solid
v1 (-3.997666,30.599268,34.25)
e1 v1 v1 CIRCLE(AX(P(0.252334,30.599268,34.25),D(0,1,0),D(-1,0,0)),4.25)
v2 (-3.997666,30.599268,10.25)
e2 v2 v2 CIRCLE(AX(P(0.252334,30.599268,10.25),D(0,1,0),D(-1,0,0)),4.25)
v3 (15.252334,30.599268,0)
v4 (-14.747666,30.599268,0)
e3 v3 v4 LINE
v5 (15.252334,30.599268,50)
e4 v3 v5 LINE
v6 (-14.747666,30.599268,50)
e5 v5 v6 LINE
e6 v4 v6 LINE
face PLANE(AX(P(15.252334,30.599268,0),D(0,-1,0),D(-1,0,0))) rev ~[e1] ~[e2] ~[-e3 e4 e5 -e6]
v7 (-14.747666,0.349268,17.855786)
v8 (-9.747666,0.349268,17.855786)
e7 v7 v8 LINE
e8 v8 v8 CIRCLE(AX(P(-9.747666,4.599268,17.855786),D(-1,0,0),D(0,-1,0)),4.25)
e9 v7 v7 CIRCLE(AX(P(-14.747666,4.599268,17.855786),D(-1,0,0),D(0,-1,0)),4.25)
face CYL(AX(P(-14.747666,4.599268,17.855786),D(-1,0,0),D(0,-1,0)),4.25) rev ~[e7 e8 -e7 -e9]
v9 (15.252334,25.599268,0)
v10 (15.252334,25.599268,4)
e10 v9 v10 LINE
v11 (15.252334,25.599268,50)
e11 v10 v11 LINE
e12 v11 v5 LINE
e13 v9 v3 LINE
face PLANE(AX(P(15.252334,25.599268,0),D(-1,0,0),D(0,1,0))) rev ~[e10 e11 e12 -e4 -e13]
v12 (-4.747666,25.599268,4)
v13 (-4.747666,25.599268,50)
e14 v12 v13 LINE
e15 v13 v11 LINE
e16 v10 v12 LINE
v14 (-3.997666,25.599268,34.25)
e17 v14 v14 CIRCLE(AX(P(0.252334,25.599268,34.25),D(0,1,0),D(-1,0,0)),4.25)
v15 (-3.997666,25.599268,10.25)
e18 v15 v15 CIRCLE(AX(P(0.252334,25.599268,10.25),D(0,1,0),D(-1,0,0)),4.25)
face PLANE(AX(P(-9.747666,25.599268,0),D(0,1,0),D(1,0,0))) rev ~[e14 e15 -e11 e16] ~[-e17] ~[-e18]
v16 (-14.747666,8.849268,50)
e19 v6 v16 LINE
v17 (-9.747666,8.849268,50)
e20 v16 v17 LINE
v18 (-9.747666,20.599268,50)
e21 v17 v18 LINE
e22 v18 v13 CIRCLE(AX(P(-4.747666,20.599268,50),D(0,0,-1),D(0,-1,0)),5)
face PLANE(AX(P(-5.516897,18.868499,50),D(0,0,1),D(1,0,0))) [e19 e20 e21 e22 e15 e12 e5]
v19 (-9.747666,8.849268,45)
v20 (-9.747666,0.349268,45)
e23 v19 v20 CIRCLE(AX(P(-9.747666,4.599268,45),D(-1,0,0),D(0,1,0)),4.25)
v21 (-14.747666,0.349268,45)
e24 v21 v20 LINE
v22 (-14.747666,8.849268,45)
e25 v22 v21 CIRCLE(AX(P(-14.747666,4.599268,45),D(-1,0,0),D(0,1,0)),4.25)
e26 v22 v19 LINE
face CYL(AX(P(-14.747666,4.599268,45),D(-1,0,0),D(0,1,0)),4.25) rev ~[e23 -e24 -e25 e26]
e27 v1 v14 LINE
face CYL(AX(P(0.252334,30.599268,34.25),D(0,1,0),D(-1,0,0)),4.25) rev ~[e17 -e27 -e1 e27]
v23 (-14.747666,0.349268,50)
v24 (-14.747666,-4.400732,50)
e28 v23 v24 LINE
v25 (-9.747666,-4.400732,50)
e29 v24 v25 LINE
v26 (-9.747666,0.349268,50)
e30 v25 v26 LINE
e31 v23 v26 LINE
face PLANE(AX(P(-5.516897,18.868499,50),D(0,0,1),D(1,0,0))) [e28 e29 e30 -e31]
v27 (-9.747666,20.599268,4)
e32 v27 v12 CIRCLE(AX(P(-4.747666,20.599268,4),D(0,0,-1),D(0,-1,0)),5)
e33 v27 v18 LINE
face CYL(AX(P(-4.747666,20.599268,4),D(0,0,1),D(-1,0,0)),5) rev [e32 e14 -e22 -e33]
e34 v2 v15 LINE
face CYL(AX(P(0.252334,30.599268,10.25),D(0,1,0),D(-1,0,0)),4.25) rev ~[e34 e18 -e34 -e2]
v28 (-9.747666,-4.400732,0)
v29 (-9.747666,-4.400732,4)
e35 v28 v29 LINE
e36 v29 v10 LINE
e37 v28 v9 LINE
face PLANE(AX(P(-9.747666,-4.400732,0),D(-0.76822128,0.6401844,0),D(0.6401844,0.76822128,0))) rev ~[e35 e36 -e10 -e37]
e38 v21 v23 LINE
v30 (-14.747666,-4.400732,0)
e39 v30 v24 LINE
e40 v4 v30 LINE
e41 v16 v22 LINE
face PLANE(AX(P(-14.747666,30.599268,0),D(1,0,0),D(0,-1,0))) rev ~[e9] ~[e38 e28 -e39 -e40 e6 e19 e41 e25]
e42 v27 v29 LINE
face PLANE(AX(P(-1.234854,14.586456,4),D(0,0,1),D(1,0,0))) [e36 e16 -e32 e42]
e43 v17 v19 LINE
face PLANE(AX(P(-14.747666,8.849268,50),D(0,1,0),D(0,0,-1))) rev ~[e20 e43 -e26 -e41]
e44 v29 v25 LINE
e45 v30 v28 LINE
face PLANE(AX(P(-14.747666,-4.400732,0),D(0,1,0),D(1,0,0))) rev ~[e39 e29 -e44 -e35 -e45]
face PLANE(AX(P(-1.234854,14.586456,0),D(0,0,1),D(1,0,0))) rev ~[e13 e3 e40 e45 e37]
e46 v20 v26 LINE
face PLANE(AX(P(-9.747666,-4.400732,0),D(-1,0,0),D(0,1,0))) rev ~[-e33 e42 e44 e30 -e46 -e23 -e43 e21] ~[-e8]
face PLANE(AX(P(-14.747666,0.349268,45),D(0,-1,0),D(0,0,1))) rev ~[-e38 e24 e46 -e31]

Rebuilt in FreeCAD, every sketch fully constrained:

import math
import FreeCAD as App
import Part
import Sketcher
from FreeCAD import Vector


def edges_at(feature, points):
    """Names of the edges that pass closest to the given points."""
    edges = feature.Shape.Edges
    near = lambda p: min(range(len(edges)), key=lambda i: edges[i].distToShape(Part.Vertex(*p))[0])
    return sorted({f"Edge{near(p) + 1}" for p in points})


def add_polygon(sketch, points):
    """Adds a closed chain of lines whose ends are joined by coincident constraints."""
    first, n = sketch.GeometryCount, len(points)
    for a, b in zip(points, points[1:] + points[:1]):
        sketch.addGeometry(Part.LineSegment(App.Vector(*a, 0), App.Vector(*b, 0)), False)
    for i in range(n):
        sketch.addConstraint(Sketcher.Constraint("Coincident", first + i, 2, first + (i + 1) % n, 1))

doc = App.newDocument("Part")
params = doc.addObject("Spreadsheet::Sheet", "Params")
for row, (alias, value) in enumerate([
    ("sketch1_width", "5 mm"),
    ("sketch1_width2", "25 mm"),
    ("pad1_length", "50 mm"),
    ("sketch2_width", "25 mm"),
    ("sketch2_height", "30 mm"),
    ("pad2_length", "4 mm"),
    ("sketch3_diameter", "8.5 mm"),
    ("sketch3_height", "5 mm"),
    ("pocket1_length", "25 mm"),
    ("sketch4_diameter", "8.5 mm"),
    ("pocket2_length", "25 mm"),
    ("fillet_radius", "5 mm"),
], start=1):
    params.set(f"A{row}", alias)
    params.set(f"B{row}", "=" + value)
    params.setAlias(f"B{row}", alias)

body = doc.addObject("PartDesign::Body", "Body")

# Sketch on XY plane
sketch1 = doc.addObject("Sketcher::SketchObject", "Sketch")
body.addObject(sketch1)
sketch1.AttachmentSupport = (doc.XY_Plane, [""])
sketch1.MapMode = "FlatFace"
add_polygon(sketch1, [(-15, -4), (-10, -4), (-10, 26), (15, 26), (15, 31), (-15, 31)])  # lines 0-5
sketch1.addConstraint([
    Sketcher.Constraint("Horizontal", 0),
    Sketcher.Constraint("Vertical", 1),
    Sketcher.Constraint("Horizontal", 2),
    Sketcher.Constraint("Vertical", 3),
    Sketcher.Constraint("Horizontal", 4),
    Sketcher.Constraint("Vertical", 5),
    Sketcher.Constraint("Equal", 4, 1),
    Sketcher.Constraint("Equal", 0, 3),
    Sketcher.Constraint("DistanceX", 0, 1, 0, 2, 5.0),
    Sketcher.Constraint("DistanceX", 2, 1, 2, 2, 25.0),
    Sketcher.Constraint("DistanceY", 0, 2, -1, 1, 4.400732),
    Sketcher.Constraint("DistanceX", 0, 2, -1, 1, 9.747666),
])
sketch1.setExpression("Constraints[14]", "Params.sketch1_width")
sketch1.setExpression("Constraints[15]", "Params.sketch1_width2")
pad1 = doc.addObject("PartDesign::Pad", "Pad")
body.addObject(pad1)
pad1.Profile = sketch1
pad1.setExpression("Length", "Params.pad1_length")

# Sketch on XY plane
sketch2 = doc.addObject("Sketcher::SketchObject", "Sketch001")
body.addObject(sketch2)
sketch2.AttachmentSupport = (doc.XY_Plane, [""])
sketch2.MapMode = "FlatFace"
add_polygon(sketch2, [(-10, 26), (-10, -4), (15, 26)])  # lines 0-2
sketch2.addConstraint([
    Sketcher.Constraint("Vertical", 0),
    Sketcher.Constraint("Horizontal", 2),
    Sketcher.Constraint("DistanceX", 2, 2, 2, 1, 25.0),
    Sketcher.Constraint("DistanceY", 0, 2, 0, 1, 30.0),
    Sketcher.Constraint("DistanceY", 0, 2, -1, 1, 4.400732),
    Sketcher.Constraint("DistanceX", 0, 2, -1, 1, 9.747666),
])
sketch2.setExpression("Constraints[5]", "Params.sketch2_width")
sketch2.setExpression("Constraints[6]", "Params.sketch2_height")
pad2 = doc.addObject("PartDesign::Pad", "Pad001")
body.addObject(pad2)
pad2.Profile = sketch2
pad2.setExpression("Length", "Params.pad2_length")

# Sketch on YZ plane
sketch3 = doc.addObject("Sketcher::SketchObject", "Sketch002")
body.addObject(sketch3)
sketch3.AttachmentSupport = (doc.YZ_Plane, [""])
sketch3.MapMode = "FlatFace"
sketch3.AttachmentOffset = App.Placement(Vector(0, 0, -14.747666), App.Rotation())
sketch3.addGeometry([
    Part.Circle(Vector(4.6, 17.9, 0), Vector(0, 0, 1), 4.2),  # 0
    Part.ArcOfCircle(Part.Circle(Vector(4.6, 45, 0), Vector(0, 0, 1), 4.2), math.radians(180), math.radians(360)),  # 1
    Part.LineSegment(Vector(0.3, 45, 0), Vector(0.3, 50, 0)),  # 2
    Part.LineSegment(Vector(0.3, 50, 0), Vector(8.8, 50, 0)),  # 3
    Part.LineSegment(Vector(8.8, 50, 0), Vector(8.8, 45, 0)),  # 4
], False)
sketch3.addConstraint([
    Sketcher.Constraint("Tangent", 1, 1, 2, 1),
    Sketcher.Constraint("Coincident", 2, 2, 3, 1),
    Sketcher.Constraint("Coincident", 3, 2, 4, 1),
    Sketcher.Constraint("Tangent", 4, 2, 1, 2),
    Sketcher.Constraint("Vertical", 2),
    Sketcher.Constraint("Horizontal", 3),
    Sketcher.Constraint("Vertical", 4),
    Sketcher.Constraint("Equal", 0, 1),
    Sketcher.Constraint("Vertical", 0, 3, 1, 3),
    Sketcher.Constraint("Diameter", 0, 8.5),
    Sketcher.Constraint("DistanceY", 2, 1, 2, 2, 5.0),
    Sketcher.Constraint("DistanceY", -1, 1, 1, 3, 45.0),
    Sketcher.Constraint("DistanceX", -1, 1, 0, 3, 4.599268),
    Sketcher.Constraint("DistanceY", -1, 1, 0, 3, 17.855786),
])
sketch3.setExpression("Constraints[9]", "Params.sketch3_diameter")
sketch3.setExpression("Constraints[10]", "Params.sketch3_height")
pocket1 = doc.addObject("PartDesign::Pocket", "Pocket")
body.addObject(pocket1)
pocket1.Profile = sketch3
pocket1.setExpression("Length", "Params.pocket1_length")
pocket1.Reversed = True

# Sketch on XZ plane
sketch4 = doc.addObject("Sketcher::SketchObject", "Sketch003")
body.addObject(sketch4)
sketch4.AttachmentSupport = (doc.XZ_Plane, [""])
sketch4.MapMode = "FlatFace"
sketch4.AttachmentOffset = App.Placement(Vector(0, 0, -30.599268), App.Rotation())
sketch4.addGeometry([
    Part.Circle(Vector(0.3, 34.2, 0), Vector(0, 0, 1), 4.2),
    Part.Circle(Vector(0.3, 10.2, 0), Vector(0, 0, 1), 4.2),
], False)
sketch4.addConstraint([
    Sketcher.Constraint("Equal", 0, 1),
    Sketcher.Constraint("Vertical", 0, 3, 1, 3),
    Sketcher.Constraint("Diameter", 0, 8.5),
    Sketcher.Constraint("DistanceY", 1, 3, 0, 3, 24.0),
    Sketcher.Constraint("DistanceY", -1, 1, 0, 3, 34.25),
    Sketcher.Constraint("DistanceX", -1, 1, 0, 3, 0.252334),
])
sketch4.setExpression("Constraints[2]", "Params.sketch4_diameter")
pocket2 = doc.addObject("PartDesign::Pocket", "Pocket001")
body.addObject(pocket2)
pocket2.Profile = sketch4
pocket2.setExpression("Length", "Params.pocket2_length")
pocket2.Reversed = True
doc.recompute()

fillet = doc.addObject("PartDesign::Fillet", "Fillet")
body.addObject(fillet)
fillet.Base = (pocket2, edges_at(pocket2, [(-9.748, 25.599, 27)]))
fillet.setExpression("Radius", "Params.fillet_radius")

doc.recompute()
